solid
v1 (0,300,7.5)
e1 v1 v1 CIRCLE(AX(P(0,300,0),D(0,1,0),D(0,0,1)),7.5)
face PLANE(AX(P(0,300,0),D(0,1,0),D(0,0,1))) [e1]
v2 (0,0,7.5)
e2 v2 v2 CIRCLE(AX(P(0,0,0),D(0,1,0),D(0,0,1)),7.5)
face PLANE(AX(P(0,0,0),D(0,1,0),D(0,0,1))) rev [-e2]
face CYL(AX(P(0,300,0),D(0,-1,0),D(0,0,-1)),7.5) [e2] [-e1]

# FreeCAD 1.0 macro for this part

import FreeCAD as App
import Part
import Sketcher

V = App.Vector

doc = App.newDocument("Part")
body = doc.addObject("PartDesign::Body", "Body")

sketch1 = body.newObject("Sketcher::SketchObject", "Sketch")
sketch1.AttachmentSupport = (doc.getObject("XZ_Plane"), [""])
sketch1.MapMode = "FlatFace"
sketch1.addGeometry(Part.Circle(V(0, 0, 0), V(0, 0, 1), 8), False)
sketch1.addConstraint(Sketcher.Constraint("Coincident", 0, 3, -1, 1))
sketch1.addConstraint(Sketcher.Constraint("Diameter", 0, 15.0))
pad1 = body.newObject("PartDesign::Pad", "Pad")
pad1.Profile = sketch1
pad1.Length = 300
pad1.Reversed = True

doc.recompute()
